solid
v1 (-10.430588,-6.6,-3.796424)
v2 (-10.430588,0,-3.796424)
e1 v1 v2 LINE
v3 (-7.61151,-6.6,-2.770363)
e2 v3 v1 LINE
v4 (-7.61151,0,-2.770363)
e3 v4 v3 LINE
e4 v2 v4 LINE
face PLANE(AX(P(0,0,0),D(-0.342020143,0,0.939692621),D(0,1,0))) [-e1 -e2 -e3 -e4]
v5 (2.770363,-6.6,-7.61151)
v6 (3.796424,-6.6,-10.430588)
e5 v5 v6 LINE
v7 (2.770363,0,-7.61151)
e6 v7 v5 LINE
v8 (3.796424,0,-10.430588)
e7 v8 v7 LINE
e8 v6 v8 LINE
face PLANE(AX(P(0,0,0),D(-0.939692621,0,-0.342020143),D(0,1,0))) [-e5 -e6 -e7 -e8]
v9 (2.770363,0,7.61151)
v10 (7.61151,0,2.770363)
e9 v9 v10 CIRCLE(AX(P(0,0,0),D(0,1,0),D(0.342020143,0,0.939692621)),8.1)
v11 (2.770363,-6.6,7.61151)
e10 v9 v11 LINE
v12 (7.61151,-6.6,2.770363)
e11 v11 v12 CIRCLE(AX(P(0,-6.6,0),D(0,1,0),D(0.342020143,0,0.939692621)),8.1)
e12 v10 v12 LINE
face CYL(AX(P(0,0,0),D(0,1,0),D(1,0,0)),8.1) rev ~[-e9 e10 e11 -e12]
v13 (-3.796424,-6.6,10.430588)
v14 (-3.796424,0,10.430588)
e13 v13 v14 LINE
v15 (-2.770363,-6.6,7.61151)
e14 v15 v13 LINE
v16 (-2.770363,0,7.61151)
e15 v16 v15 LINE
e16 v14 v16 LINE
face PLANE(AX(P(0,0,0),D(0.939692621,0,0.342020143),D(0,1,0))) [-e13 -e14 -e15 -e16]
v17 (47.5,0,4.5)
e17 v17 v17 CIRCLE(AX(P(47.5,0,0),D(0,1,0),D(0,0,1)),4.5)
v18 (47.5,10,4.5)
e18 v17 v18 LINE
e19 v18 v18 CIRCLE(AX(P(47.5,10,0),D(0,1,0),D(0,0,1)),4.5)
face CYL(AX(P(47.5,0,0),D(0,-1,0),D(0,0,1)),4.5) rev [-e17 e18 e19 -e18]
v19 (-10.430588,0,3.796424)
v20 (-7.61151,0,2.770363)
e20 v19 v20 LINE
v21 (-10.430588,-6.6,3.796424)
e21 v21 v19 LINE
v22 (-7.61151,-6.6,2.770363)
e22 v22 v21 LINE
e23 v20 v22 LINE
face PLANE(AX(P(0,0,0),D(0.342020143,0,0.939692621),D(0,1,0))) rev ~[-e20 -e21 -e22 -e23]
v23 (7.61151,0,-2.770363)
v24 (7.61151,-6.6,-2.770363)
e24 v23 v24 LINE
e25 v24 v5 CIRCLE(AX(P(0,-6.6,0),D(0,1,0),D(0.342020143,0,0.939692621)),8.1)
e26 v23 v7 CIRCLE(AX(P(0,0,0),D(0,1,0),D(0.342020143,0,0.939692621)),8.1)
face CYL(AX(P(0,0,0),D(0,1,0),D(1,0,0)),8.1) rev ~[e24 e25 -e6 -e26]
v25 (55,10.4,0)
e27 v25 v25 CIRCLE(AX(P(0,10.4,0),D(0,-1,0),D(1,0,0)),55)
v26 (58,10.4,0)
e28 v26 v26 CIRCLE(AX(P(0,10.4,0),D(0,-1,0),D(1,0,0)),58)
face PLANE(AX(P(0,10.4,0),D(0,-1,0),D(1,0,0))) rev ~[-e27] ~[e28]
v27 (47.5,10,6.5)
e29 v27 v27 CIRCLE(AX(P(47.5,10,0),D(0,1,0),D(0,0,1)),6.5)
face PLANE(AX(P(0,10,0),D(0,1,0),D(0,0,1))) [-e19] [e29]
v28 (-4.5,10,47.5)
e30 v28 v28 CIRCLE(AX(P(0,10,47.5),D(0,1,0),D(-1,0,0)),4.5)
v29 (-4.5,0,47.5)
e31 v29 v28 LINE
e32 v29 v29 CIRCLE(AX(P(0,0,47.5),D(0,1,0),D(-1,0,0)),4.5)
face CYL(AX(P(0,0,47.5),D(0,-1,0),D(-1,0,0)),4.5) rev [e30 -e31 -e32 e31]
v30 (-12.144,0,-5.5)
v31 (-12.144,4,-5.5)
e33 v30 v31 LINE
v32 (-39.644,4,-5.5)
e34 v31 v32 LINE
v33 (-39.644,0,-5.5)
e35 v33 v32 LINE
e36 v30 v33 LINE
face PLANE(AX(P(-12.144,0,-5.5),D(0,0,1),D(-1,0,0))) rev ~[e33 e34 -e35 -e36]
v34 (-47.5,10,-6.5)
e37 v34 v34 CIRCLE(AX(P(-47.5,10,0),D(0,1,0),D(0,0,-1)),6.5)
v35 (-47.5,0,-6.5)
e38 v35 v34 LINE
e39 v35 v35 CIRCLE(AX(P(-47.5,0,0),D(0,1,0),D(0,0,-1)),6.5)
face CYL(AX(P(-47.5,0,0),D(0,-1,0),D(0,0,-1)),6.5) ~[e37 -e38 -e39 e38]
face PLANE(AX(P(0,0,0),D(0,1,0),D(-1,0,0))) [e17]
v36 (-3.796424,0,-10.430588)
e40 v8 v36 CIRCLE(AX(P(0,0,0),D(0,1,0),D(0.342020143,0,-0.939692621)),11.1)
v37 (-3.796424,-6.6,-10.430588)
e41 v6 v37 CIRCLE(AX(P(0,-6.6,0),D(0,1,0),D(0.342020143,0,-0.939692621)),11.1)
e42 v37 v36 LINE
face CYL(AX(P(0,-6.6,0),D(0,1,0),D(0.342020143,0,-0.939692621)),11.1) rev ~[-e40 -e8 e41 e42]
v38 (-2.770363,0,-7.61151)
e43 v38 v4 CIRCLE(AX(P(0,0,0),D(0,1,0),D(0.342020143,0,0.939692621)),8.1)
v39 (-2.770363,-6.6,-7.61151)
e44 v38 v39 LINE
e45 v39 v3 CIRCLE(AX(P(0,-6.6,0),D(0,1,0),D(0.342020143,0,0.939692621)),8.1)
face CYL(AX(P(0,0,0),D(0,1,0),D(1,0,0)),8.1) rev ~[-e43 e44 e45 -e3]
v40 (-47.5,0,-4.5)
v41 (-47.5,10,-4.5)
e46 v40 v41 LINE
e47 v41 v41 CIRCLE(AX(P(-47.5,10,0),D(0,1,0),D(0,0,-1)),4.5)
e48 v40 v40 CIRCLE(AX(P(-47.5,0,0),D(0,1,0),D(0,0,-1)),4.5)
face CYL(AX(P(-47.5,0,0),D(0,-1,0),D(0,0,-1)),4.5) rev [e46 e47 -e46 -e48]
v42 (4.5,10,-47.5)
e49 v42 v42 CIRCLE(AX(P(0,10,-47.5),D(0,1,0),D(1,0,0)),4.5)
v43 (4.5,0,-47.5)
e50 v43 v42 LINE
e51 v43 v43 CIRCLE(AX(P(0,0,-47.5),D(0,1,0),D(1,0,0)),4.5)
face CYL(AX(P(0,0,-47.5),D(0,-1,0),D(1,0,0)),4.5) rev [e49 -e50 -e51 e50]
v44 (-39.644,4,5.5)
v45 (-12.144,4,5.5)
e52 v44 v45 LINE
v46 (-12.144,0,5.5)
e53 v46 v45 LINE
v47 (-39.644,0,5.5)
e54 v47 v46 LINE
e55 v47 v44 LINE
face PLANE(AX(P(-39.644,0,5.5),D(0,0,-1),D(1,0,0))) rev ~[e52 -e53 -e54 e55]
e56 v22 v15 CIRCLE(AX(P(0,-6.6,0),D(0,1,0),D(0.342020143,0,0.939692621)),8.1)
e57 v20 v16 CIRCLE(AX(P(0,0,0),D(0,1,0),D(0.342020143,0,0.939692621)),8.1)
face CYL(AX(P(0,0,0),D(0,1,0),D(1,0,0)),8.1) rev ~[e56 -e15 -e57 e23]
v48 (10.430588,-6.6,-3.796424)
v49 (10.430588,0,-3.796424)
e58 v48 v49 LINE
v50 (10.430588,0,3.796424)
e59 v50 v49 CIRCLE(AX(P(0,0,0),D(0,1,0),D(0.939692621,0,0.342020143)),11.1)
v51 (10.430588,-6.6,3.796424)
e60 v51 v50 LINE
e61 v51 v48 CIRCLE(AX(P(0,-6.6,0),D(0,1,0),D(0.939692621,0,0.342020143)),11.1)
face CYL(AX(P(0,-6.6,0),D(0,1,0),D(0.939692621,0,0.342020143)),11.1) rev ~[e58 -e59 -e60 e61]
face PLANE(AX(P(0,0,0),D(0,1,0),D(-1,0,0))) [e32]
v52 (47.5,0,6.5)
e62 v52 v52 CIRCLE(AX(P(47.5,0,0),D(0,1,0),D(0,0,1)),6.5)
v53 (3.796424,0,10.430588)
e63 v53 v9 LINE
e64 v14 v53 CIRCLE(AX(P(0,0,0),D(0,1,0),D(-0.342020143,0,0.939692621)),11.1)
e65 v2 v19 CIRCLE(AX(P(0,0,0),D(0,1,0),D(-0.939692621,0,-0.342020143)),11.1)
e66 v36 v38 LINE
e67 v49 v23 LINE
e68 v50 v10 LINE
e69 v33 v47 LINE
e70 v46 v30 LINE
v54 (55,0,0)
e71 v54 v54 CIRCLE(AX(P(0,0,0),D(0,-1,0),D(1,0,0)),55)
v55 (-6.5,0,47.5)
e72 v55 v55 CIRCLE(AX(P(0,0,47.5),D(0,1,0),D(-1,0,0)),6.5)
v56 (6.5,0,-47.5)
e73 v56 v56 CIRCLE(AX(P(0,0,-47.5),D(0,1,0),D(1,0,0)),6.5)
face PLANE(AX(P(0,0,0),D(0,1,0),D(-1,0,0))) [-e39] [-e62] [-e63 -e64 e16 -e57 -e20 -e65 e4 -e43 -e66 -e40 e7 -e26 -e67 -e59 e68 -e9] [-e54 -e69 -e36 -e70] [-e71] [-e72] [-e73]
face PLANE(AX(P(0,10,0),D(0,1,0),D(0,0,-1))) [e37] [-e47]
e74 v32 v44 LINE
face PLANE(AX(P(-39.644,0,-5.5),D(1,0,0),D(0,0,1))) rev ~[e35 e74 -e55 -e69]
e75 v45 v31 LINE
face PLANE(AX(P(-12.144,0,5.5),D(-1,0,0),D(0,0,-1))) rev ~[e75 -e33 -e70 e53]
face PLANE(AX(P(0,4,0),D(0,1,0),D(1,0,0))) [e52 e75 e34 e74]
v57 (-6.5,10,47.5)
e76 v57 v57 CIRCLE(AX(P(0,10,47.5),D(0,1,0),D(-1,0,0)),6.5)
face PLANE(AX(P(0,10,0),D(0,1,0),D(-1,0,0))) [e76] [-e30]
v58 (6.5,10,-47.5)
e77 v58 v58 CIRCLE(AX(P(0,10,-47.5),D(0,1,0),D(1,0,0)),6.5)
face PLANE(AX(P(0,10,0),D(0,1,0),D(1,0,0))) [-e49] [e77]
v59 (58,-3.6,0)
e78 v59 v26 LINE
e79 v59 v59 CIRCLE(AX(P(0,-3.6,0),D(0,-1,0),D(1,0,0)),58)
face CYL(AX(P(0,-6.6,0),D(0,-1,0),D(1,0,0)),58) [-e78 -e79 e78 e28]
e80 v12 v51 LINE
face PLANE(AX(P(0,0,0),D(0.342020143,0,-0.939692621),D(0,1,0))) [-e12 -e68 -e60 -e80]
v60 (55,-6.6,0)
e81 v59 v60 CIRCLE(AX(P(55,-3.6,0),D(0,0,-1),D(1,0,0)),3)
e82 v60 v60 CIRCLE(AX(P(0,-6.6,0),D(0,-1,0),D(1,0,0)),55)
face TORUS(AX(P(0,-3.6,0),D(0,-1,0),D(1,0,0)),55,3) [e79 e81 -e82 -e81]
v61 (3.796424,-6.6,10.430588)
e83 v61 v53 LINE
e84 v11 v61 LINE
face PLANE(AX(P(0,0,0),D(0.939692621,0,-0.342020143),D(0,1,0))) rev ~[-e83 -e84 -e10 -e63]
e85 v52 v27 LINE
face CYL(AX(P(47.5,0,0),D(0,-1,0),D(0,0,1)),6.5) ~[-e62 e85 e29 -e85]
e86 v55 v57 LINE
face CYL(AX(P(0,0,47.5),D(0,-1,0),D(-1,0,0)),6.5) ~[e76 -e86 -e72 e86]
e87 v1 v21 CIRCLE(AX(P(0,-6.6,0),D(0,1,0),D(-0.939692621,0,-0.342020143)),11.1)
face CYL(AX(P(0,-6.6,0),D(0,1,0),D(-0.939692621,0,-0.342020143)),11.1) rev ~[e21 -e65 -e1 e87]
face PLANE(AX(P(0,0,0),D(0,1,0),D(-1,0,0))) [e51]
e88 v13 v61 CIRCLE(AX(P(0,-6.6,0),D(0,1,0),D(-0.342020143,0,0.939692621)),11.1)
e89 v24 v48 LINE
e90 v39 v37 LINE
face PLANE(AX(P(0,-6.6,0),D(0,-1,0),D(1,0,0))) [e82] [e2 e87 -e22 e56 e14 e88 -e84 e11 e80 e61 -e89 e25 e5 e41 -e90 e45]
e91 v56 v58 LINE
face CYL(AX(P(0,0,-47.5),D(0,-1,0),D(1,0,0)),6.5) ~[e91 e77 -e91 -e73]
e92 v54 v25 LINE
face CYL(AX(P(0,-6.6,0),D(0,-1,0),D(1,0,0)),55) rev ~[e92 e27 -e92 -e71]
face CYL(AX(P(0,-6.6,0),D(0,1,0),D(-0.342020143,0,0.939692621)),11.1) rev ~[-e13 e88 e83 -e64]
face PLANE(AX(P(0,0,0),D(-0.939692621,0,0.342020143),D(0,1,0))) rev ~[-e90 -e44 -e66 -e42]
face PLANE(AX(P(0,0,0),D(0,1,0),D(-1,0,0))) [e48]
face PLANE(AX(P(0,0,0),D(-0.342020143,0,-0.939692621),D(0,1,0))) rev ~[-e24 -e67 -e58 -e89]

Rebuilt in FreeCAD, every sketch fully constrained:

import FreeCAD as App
import Part
import Sketcher
from FreeCAD import Vector
Q = App.Units.Quantity


def edges_at(feature, points):
    """Names of the edges that pass closest to the given points."""
    edges = feature.Shape.Edges
    near = lambda p: min(range(len(edges)), key=lambda i: edges[i].distToShape(Part.Vertex(*p))[0])
    return sorted({f"Edge{near(p) + 1}" for p in points})

doc = App.newDocument("Part")
body = doc.addObject("PartDesign::Body", "Body")

sketch1 = body.newObject("Sketcher::SketchObject", "Sketch")
sketch1.AttachmentSupport = (doc.getObject("XZ_Plane"), [""])
sketch1.MapMode = "FlatFace"
sketch1.addGeometry(Part.Circle(Vector(0, 0, 0), Vector(0, 0, 1), 55), False)
sketch1.addConstraint([
    Sketcher.Constraint("Coincident", 0, 3, -1, 1),
    Sketcher.Constraint("Diameter", 0, Q("110 mm")),
])
pad1 = body.newObject("PartDesign::Pad", "Pad")
pad1.Profile = sketch1
pad1.Length = 6.6

sketch2 = body.newObject("Sketcher::SketchObject", "Sketch001")
sketch2.AttachmentSupport = (doc.getObject("XZ_Plane"), [""])
sketch2.MapMode = "FlatFace"
sketch2.addGeometry([
    Part.Circle(Vector(0, 47.5, 0), Vector(0, 0, 1), 6.5),
    Part.Circle(Vector(0, 47.5, 0), Vector(0, 0, 1), 4.5),
], False)
sketch2.addConstraint([
    Sketcher.Constraint("Coincident", 1, 3, 0, 3),
    Sketcher.Constraint("PointOnObject", 0, 3, -2),
    Sketcher.Constraint("Diameter", 0, Q("13 mm")),
    Sketcher.Constraint("Diameter", 1, Q("9 mm")),
    Sketcher.Constraint("DistanceY", -1, 1, 0, 3, Q("47.5 mm")),
])
pad2 = body.newObject("PartDesign::Pad", "Pad001")
pad2.Profile = sketch2
pad2.Length = 10
pad2.Reversed = True
doc.recompute()

polarpattern = body.newObject("PartDesign::PolarPattern", "PolarPattern")
polarpattern.Originals = [pad2]
polarpattern.Axis = (doc.getObject("Y_Axis"), [""])
polarpattern.Angle = 360
polarpattern.Occurrences = 4
body.Tip = polarpattern

sketch3 = body.newObject("Sketcher::SketchObject", "Sketch002")
sketch3.AttachmentSupport = (doc.getObject("XZ_Plane"), [""])
sketch3.MapMode = "FlatFace"
sketch3.AttachmentOffset = App.Placement(Vector(0, 0, 6.6), App.Rotation())
sketch3.addGeometry([
    Part.Circle(Vector(0, 0, 0), Vector(0, 0, 1), 58),
    Part.Circle(Vector(0, 0, 0), Vector(0, 0, 1), 55),
], False)
sketch3.addConstraint([
    Sketcher.Constraint("Coincident", 0, 3, -1, 1),
    Sketcher.Constraint("Coincident", 1, 3, -1, 1),
    Sketcher.Constraint("Diameter", 0, Q("116 mm")),
    Sketcher.Constraint("Diameter", 1, Q("110 mm")),
])
pad3 = body.newObject("PartDesign::Pad", "Pad002")
pad3.Profile = sketch3
pad3.Length = 17
pad3.Reversed = True

sketch4 = body.newObject("Sketcher::SketchObject", "Sketch003")
sketch4.AttachmentSupport = (doc.getObject("XZ_Plane"), [""])
sketch4.MapMode = "FlatFace"
sketch4.addGeometry(Part.Circle(Vector(0, 0, 0), Vector(0, 0, 1), 8.1), False)
sketch4.addConstraint([
    Sketcher.Constraint("Coincident", 0, 3, -1, 1),
    Sketcher.Constraint("Diameter", 0, Q("16.2 mm")),
])
pocket1 = body.newObject("PartDesign::Pocket", "Pocket")
pocket1.Profile = sketch4
pocket1.Length = 30
pocket1.Reversed = True

sketch5 = body.newObject("Sketcher::SketchObject", "Sketch004")
sketch5.AttachmentSupport = (doc.getObject("YZ_Plane"), [""])
sketch5.MapMode = "FlatFace"
sketch5.addGeometry([
    Part.LineSegment(Vector(-6.6, 8.1, 0), Vector(0, 8.1, 0)),
    Part.LineSegment(Vector(0, 8.1, 0), Vector(0, 11.1, 0)),
    Part.LineSegment(Vector(0, 11.1, 0), Vector(-6.6, 11.1, 0)),
    Part.LineSegment(Vector(-6.6, 11.1, 0), Vector(-6.6, 8.1, 0)),
], False)
sketch5.addConstraint([
    Sketcher.Constraint("Coincident", 0, 2, 1, 1),
    Sketcher.Constraint("Coincident", 1, 2, 2, 1),
    Sketcher.Constraint("Coincident", 2, 2, 3, 1),
    Sketcher.Constraint("Coincident", 3, 2, 0, 1),
    Sketcher.Constraint("Horizontal", 0),
    Sketcher.Constraint("Vertical", 1),
    Sketcher.Constraint("Horizontal", 2),
    Sketcher.Constraint("Vertical", 3),
    Sketcher.Constraint("PointOnObject", 0, 2, -2),
    Sketcher.Constraint("DistanceY", 1, 1, 1, 2, Q("3 mm")),
    Sketcher.Constraint("DistanceX", 0, 1, 0, 2, Q("6.6 mm")),
    Sketcher.Constraint("DistanceY", -1, 1, 0, 2, Q("8.1 mm")),
])
groove = body.newObject("PartDesign::Groove", "Groove")
groove.Profile = sketch5
groove.ReferenceAxis = (sketch5, ["H_Axis"])
groove.Angle = 40
groove.Midplane = True
doc.recompute()

polarpattern2 = body.newObject("PartDesign::PolarPattern", "PolarPattern001")
polarpattern2.Originals = [groove]
polarpattern2.Axis = (doc.getObject("Y_Axis"), [""])
polarpattern2.Angle = 360
polarpattern2.Occurrences = 4
body.Tip = polarpattern2
doc.recompute()

fillet = body.newObject("PartDesign::Fillet", "Fillet")
fillet.Base = (polarpattern2, edges_at(polarpattern2, [(-58, -6.6, 0)]))
fillet.Radius = 3

sketch6 = body.newObject("Sketcher::SketchObject", "Sketch005")
sketch6.AttachmentSupport = (doc.getObject("XZ_Plane"), [""])
sketch6.MapMode = "FlatFace"
sketch6.addGeometry([
    Part.LineSegment(Vector(-12.144, 5.5, 0), Vector(-12.144, -5.5, 0)),
    Part.LineSegment(Vector(-12.144, -5.5, 0), Vector(-39.644, -5.5, 0)),
    Part.LineSegment(Vector(-39.644, -5.5, 0), Vector(-39.644, 5.5, 0)),
    Part.LineSegment(Vector(-39.644, 5.5, 0), Vector(-12.144, 5.5, 0)),
], False)
sketch6.addConstraint([
    Sketcher.Constraint("Coincident", 0, 2, 1, 1),
    Sketcher.Constraint("Coincident", 1, 2, 2, 1),
    Sketcher.Constraint("Coincident", 2, 2, 3, 1),
    Sketcher.Constraint("Coincident", 3, 2, 0, 1),
    Sketcher.Constraint("Vertical", 0),
    Sketcher.Constraint("Horizontal", 1),
    Sketcher.Constraint("Vertical", 2),
    Sketcher.Constraint("Horizontal", 3),
    Sketcher.Constraint("DistanceY", 0, 2, 0, 1, Q("11 mm")),
    Sketcher.Constraint("DistanceX", 1, 2, 1, 1, Q("27.5 mm")),
    Sketcher.Constraint("DistanceY", 0, 2, -1, 1, Q("5.5 mm")),
    Sketcher.Constraint("DistanceX", 0, 2, -1, 1, Q("12.144 mm")),
])
pad4 = body.newObject("PartDesign::Pad", "Pad003")
pad4.Profile = sketch6
pad4.Length = 4
pad4.Reversed = True

doc.recompute()
